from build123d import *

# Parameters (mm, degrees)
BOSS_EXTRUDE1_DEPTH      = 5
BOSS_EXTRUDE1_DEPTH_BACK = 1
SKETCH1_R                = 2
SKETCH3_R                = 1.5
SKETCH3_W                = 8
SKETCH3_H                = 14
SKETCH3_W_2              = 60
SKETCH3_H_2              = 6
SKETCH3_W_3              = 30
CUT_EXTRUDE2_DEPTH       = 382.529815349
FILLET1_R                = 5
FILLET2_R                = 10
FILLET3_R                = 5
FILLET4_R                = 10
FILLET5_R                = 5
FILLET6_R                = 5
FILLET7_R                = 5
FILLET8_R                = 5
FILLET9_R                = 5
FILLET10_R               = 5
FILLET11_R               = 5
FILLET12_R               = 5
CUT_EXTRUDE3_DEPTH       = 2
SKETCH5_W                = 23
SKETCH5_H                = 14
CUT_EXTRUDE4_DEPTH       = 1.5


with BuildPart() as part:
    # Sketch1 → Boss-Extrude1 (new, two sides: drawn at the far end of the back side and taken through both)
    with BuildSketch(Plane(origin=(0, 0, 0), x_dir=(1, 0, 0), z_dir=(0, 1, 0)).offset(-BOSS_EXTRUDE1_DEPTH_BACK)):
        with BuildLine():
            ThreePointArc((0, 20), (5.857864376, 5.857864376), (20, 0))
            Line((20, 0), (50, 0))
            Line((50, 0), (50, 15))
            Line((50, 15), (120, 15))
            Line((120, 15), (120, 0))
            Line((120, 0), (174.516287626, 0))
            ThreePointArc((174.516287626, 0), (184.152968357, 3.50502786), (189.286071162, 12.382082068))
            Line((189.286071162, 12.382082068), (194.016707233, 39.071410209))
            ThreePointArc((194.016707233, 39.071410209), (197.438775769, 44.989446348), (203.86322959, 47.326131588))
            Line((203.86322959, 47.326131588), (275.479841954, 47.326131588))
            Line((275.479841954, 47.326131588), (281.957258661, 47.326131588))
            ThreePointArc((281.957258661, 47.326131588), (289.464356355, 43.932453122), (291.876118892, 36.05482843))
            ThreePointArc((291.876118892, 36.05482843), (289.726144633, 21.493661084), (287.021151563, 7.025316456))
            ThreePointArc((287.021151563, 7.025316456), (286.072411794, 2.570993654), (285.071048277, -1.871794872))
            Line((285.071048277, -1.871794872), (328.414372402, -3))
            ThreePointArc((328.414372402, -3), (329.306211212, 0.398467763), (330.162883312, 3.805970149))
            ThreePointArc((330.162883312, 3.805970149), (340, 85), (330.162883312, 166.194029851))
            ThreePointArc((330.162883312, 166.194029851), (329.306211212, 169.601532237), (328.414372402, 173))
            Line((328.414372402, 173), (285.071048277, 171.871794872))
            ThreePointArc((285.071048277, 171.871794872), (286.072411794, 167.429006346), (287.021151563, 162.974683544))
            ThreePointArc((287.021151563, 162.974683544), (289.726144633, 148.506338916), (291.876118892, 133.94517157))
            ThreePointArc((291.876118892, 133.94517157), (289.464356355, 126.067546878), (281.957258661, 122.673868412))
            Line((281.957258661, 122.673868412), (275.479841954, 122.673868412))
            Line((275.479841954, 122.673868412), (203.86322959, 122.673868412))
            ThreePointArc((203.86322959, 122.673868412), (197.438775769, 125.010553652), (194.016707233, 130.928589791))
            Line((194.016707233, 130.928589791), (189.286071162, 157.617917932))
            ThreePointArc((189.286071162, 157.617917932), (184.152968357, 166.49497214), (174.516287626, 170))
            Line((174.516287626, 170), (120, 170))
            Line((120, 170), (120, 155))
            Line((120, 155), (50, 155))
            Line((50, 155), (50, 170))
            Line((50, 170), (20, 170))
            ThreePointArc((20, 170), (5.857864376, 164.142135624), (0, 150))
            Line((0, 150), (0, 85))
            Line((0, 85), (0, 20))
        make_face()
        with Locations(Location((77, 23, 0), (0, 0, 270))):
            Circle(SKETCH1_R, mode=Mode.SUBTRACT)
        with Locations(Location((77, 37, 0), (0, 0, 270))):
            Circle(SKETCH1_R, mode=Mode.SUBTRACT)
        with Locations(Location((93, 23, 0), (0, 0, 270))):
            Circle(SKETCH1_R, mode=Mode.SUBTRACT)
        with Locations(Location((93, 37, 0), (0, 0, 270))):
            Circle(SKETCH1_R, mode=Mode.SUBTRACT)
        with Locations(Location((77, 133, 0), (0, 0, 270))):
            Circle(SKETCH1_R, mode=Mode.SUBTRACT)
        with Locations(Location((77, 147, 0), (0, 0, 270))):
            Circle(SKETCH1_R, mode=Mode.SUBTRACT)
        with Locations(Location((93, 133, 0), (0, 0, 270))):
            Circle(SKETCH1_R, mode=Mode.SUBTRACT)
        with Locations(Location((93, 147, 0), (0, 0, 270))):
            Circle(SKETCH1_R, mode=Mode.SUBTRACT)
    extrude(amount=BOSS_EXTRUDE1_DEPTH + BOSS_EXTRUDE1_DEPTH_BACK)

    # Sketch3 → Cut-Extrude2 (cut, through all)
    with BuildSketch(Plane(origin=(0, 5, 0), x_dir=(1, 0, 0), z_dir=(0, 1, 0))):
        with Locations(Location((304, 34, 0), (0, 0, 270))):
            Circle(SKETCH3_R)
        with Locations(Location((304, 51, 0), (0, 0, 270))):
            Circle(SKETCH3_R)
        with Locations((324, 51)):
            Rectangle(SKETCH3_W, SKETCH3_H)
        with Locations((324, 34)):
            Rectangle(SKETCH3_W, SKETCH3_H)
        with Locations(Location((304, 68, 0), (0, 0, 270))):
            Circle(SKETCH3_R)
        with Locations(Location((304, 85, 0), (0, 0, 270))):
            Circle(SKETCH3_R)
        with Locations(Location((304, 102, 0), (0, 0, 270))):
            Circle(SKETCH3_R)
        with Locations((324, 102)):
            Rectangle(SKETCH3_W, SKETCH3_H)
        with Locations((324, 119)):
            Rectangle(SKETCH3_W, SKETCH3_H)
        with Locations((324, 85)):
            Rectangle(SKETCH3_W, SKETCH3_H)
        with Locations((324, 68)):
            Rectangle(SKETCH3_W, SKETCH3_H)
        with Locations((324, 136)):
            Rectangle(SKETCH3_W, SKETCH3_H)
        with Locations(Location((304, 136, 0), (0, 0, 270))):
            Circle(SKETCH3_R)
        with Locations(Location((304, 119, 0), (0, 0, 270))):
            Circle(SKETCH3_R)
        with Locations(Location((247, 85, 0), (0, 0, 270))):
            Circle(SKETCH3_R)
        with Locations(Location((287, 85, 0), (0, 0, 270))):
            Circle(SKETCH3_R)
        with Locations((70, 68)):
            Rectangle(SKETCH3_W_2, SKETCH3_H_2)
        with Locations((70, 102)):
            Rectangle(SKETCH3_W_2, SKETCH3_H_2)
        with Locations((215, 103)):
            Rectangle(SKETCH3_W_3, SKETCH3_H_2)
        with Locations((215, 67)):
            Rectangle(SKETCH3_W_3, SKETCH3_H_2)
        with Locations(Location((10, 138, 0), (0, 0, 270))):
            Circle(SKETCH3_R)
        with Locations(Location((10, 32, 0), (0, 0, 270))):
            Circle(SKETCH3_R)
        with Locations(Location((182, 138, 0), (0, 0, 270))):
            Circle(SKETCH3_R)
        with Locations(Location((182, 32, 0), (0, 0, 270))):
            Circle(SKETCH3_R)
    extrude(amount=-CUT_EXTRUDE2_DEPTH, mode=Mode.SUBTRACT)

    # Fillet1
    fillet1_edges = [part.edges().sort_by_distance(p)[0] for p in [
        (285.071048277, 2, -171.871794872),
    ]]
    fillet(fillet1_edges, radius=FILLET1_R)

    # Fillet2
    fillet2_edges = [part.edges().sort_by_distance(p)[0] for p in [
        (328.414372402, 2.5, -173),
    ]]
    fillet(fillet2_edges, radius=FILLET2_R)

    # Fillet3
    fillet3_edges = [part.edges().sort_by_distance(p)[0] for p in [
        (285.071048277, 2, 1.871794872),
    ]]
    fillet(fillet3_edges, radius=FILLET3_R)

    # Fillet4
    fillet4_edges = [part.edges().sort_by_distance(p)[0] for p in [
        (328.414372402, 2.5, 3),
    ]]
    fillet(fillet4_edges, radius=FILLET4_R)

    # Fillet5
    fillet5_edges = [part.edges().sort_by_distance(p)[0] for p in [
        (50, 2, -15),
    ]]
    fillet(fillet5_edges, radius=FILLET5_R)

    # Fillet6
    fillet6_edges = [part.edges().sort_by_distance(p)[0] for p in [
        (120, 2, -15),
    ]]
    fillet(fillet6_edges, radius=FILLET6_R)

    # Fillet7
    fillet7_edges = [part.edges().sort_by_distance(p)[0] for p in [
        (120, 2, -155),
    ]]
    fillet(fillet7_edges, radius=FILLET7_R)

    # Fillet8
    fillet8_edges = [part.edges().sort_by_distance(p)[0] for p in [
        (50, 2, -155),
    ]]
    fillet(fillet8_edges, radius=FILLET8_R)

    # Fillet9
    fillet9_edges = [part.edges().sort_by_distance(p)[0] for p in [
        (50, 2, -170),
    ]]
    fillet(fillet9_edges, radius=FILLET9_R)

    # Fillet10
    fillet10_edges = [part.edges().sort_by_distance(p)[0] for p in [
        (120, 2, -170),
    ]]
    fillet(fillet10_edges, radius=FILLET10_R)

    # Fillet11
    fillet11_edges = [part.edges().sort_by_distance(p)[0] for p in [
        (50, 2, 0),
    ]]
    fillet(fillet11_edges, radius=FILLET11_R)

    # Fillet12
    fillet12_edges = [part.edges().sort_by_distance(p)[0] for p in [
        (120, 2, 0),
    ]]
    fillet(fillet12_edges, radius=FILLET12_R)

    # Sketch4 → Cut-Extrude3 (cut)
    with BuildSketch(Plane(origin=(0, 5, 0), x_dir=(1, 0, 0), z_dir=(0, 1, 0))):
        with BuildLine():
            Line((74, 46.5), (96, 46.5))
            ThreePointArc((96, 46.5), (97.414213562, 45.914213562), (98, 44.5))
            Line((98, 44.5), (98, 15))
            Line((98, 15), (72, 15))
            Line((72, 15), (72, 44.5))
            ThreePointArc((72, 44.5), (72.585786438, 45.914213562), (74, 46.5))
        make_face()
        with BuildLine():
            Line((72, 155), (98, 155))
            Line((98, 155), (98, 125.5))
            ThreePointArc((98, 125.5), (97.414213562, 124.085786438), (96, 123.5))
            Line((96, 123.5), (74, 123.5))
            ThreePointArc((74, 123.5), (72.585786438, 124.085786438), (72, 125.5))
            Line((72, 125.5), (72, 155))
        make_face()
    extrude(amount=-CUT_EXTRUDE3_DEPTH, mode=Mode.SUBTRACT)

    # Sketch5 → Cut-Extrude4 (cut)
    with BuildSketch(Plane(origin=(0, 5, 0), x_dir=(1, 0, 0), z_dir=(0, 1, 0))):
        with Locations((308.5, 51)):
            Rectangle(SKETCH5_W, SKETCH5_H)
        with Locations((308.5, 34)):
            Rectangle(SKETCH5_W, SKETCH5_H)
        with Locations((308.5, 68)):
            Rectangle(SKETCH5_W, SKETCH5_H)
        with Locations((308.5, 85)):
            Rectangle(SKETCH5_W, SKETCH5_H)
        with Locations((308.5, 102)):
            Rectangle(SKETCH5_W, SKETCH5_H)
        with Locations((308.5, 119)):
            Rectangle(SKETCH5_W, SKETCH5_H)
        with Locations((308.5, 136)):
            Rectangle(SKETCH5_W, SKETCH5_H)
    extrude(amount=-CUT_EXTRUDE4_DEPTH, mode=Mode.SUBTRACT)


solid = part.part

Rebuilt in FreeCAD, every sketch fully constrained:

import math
import FreeCAD as App
import Part
import Sketcher
from FreeCAD import Vector


def edges_at(feature, points):
    """Names of the edges that pass closest to the given points."""
    edges = feature.Shape.Edges
    near = lambda p: min(range(len(edges)), key=lambda i: edges[i].distToShape(Part.Vertex(*p))[0])
    return sorted({f"Edge{near(p) + 1}" for p in points})


def add_polygon(sketch, points):
    """Adds a closed chain of lines whose ends are joined by coincident constraints."""
    first, n = sketch.GeometryCount, len(points)
    for a, b in zip(points, points[1:] + points[:1]):
        sketch.addGeometry(Part.LineSegment(App.Vector(*a, 0), App.Vector(*b, 0)), False)
    for i in range(n):
        sketch.addConstraint(Sketcher.Constraint("Coincident", first + i, 2, first + (i + 1) % n, 1))

doc = App.newDocument("Part")
body = doc.addObject("PartDesign::Body", "Body")

# Sketch on XZ plane
sketch1 = body.newObject("Sketcher::SketchObject", "Sketch")
sketch1.AttachmentSupport = (doc.getObject("XZ_Plane"), [""])
sketch1.MapMode = "FlatFace"
sketch1.addGeometry(Part.ArcOfCircle(Part.Circle(Vector(20, -20, 0), Vector(0, 0, 1), 20), math.radians(90), math.radians(180)), False)
sketch1.addGeometry(Part.LineSegment(Vector(20, 0, 0), Vector(50, 0, 0)), False)
sketch1.addGeometry(Part.LineSegment(Vector(50, 0, 0), Vector(50, -15, 0)), False)
sketch1.addGeometry(Part.LineSegment(Vector(50, -15, 0), Vector(120, -15, 0)), False)
sketch1.addGeometry(Part.LineSegment(Vector(120, -15, 0), Vector(120, 0, 0)), False)
sketch1.addGeometry(Part.LineSegment(Vector(120, 0, 0), Vector(174.516288, 0, 0)), False)
sketch1.addGeometry(Part.ArcOfCircle(Part.Circle(Vector(174.516288, -15, 0), Vector(0, 0, 1), 15), math.radians(10.051184), math.radians(90)), False)
sketch1.addGeometry(Part.LineSegment(Vector(189.286071, -12.382082, 0), Vector(194.016707, -39.07141, 0)), False)
sketch1.addGeometry(Part.ArcOfCircle(Part.Circle(Vector(203.86323, -37.326132, 0), Vector(0, 0, 1), 10), math.radians(-169.948816), math.radians(-90)), False)
sketch1.addGeometry(Part.LineSegment(Vector(203.86323, -47.326132, 0), Vector(281.957259, -47.326132, 0)), False)
sketch1.addGeometry(Part.ArcOfCircle(Part.Circle(Vector(281.957259, -37.326132, 0), Vector(0, 0, 1), 10), math.radians(-90), math.radians(7.303796)), False)
sketch1.addGeometry(Part.ArcOfCircle(Part.Circle(Vector(-89.999999, -85, 0), Vector(0, 0, 1), 384.999999), math.radians(7.303796), math.radians(11.685042)), False)
sketch1.addGeometry(Part.ArcOfCircle(Part.Circle(Vector(-90.000001, -85, 0), Vector(0, 0, 1), 385.000001), math.radians(11.685042), math.radians(13.040576)), False)
sketch1.addGeometry(Part.LineSegment(Vector(285.071048, 1.871795, 0), Vector(328.414372, 3, 0)), False)
sketch1.addGeometry(Part.ArcOfCircle(Part.Circle(Vector(-0.000016, -85.000004, 0), Vector(0, 0, 1), 340.000017), math.radians(13.816079), math.radians(15.000266)), False)
sketch1.addGeometry(Part.ArcOfCircle(Part.Circle(Vector(0, -85, 0), Vector(0, 0, 1), 340), math.radians(-13.816078), math.radians(13.816078)), False)
sketch1.addGeometry(Part.ArcOfCircle(Part.Circle(Vector(-0.000016, -84.999996, 0), Vector(0, 0, 1), 340.000017), math.radians(-15.000266), math.radians(-13.816079)), False)
sketch1.addGeometry(Part.LineSegment(Vector(328.414372, -173, 0), Vector(285.071048, -171.871795, 0)), False)
sketch1.addGeometry(Part.ArcOfCircle(Part.Circle(Vector(-90.000001, -85, 0), Vector(0, 0, 1), 385.000001), math.radians(-13.040576), math.radians(-11.685042)), False)
sketch1.addGeometry(Part.ArcOfCircle(Part.Circle(Vector(-89.999999, -85, 0), Vector(0, 0, 1), 384.999999), math.radians(-11.685042), math.radians(-7.303796)), False)
sketch1.addGeometry(Part.ArcOfCircle(Part.Circle(Vector(281.957259, -132.673868, 0), Vector(0, 0, 1), 10), math.radians(-7.303796), math.radians(90)), False)
sketch1.addGeometry(Part.LineSegment(Vector(281.957259, -122.673868, 0), Vector(203.86323, -122.673868, 0)), False)
sketch1.addGeometry(Part.ArcOfCircle(Part.Circle(Vector(203.86323, -132.673868, 0), Vector(0, 0, 1), 10), math.radians(90), math.radians(169.948816)), False)
sketch1.addGeometry(Part.LineSegment(Vector(194.016707, -130.92859, 0), Vector(189.286071, -157.617918, 0)), False)
sketch1.addGeometry(Part.ArcOfCircle(Part.Circle(Vector(174.516288, -155, 0), Vector(0, 0, 1), 15), math.radians(-90), math.radians(-10.051184)), False)
sketch1.addGeometry(Part.LineSegment(Vector(174.516288, -170, 0), Vector(120, -170, 0)), False)
sketch1.addGeometry(Part.LineSegment(Vector(120, -170, 0), Vector(120, -155, 0)), False)
sketch1.addGeometry(Part.LineSegment(Vector(120, -155, 0), Vector(50, -155, 0)), False)
sketch1.addGeometry(Part.LineSegment(Vector(50, -155, 0), Vector(50, -170, 0)), False)
sketch1.addGeometry(Part.LineSegment(Vector(50, -170, 0), Vector(20, -170, 0)), False)
sketch1.addGeometry(Part.ArcOfCircle(Part.Circle(Vector(20, -150, 0), Vector(0, 0, 1), 20), math.radians(180), math.radians(270)), False)
sketch1.addGeometry(Part.LineSegment(Vector(0, -150, 0), Vector(0, -20, 0)), False)
sketch1.addGeometry(Part.Circle(Vector(77, -23, 0), Vector(0, 0, 1), 2), False)
sketch1.addGeometry(Part.Circle(Vector(77, -37, 0), Vector(0, 0, 1), 2), False)
sketch1.addGeometry(Part.Circle(Vector(93, -23, 0), Vector(0, 0, 1), 2), False)
sketch1.addGeometry(Part.Circle(Vector(93, -37, 0), Vector(0, 0, 1), 2), False)
sketch1.addGeometry(Part.Circle(Vector(77, -133, 0), Vector(0, 0, 1), 2), False)
sketch1.addGeometry(Part.Circle(Vector(77, -147, 0), Vector(0, 0, 1), 2), False)
sketch1.addGeometry(Part.Circle(Vector(93, -133, 0), Vector(0, 0, 1), 2), False)
sketch1.addGeometry(Part.Circle(Vector(93, -147, 0), Vector(0, 0, 1), 2), False)
sketch1.addConstraint(Sketcher.Constraint("Tangent", 0, 1, 1, 1))
sketch1.addConstraint(Sketcher.Constraint("Coincident", 1, 2, 2, 1))
sketch1.addConstraint(Sketcher.Constraint("Coincident", 2, 2, 3, 1))
sketch1.addConstraint(Sketcher.Constraint("Coincident", 3, 2, 4, 1))
sketch1.addConstraint(Sketcher.Constraint("Coincident", 4, 2, 5, 1))
sketch1.addConstraint(Sketcher.Constraint("Tangent", 5, 2, 6, 2))
sketch1.addConstraint(Sketcher.Constraint("Tangent", 6, 1, 7, 1))
sketch1.addConstraint(Sketcher.Constraint("Tangent", 7, 2, 8, 1))
sketch1.addConstraint(Sketcher.Constraint("Tangent", 8, 2, 9, 1))
sketch1.addConstraint(Sketcher.Constraint("Tangent", 9, 2, 10, 1))
sketch1.addConstraint(Sketcher.Constraint("Tangent", 10, 2, 11, 1))
sketch1.addConstraint(Sketcher.Constraint("Tangent", 11, 2, 12, 1))
sketch1.addConstraint(Sketcher.Constraint("Coincident", 12, 2, 13, 1))
sketch1.addConstraint(Sketcher.Constraint("Coincident", 13, 2, 14, 2))
sketch1.addConstraint(Sketcher.Constraint("Tangent", 14, 1, 15, 2))
sketch1.addConstraint(Sketcher.Constraint("Tangent", 15, 1, 16, 2))
sketch1.addConstraint(Sketcher.Constraint("Coincident", 16, 1, 17, 1))
sketch1.addConstraint(Sketcher.Constraint("Coincident", 17, 2, 18, 1))
sketch1.addConstraint(Sketcher.Constraint("Tangent", 18, 2, 19, 1))
sketch1.addConstraint(Sketcher.Constraint("Tangent", 19, 2, 20, 1))
sketch1.addConstraint(Sketcher.Constraint("Tangent", 20, 2, 21, 1))
sketch1.addConstraint(Sketcher.Constraint("Tangent", 21, 2, 22, 1))
sketch1.addConstraint(Sketcher.Constraint("Tangent", 22, 2, 23, 1))
sketch1.addConstraint(Sketcher.Constraint("Tangent", 23, 2, 24, 2))
sketch1.addConstraint(Sketcher.Constraint("Tangent", 24, 1, 25, 1))
sketch1.addConstraint(Sketcher.Constraint("Coincident", 25, 2, 26, 1))
sketch1.addConstraint(Sketcher.Constraint("Coincident", 26, 2, 27, 1))
sketch1.addConstraint(Sketcher.Constraint("Coincident", 27, 2, 28, 1))
sketch1.addConstraint(Sketcher.Constraint("Coincident", 28, 2, 29, 1))
sketch1.addConstraint(Sketcher.Constraint("Tangent", 29, 2, 30, 2))
sketch1.addConstraint(Sketcher.Constraint("Tangent", 30, 1, 31, 1))
sketch1.addConstraint(Sketcher.Constraint("Tangent", 31, 2, 0, 2))
sketch1.addConstraint(Sketcher.Constraint("Horizontal", 1))
sketch1.addConstraint(Sketcher.Constraint("Vertical", 2))
sketch1.addConstraint(Sketcher.Constraint("Horizontal", 3))
sketch1.addConstraint(Sketcher.Constraint("Vertical", 4))
sketch1.addConstraint(Sketcher.Constraint("Horizontal", 5))
sketch1.addConstraint(Sketcher.Constraint("Horizontal", 9))
sketch1.addConstraint(Sketcher.Constraint("Horizontal", 21))
sketch1.addConstraint(Sketcher.Constraint("Horizontal", 25))
sketch1.addConstraint(Sketcher.Constraint("Vertical", 26))
sketch1.addConstraint(Sketcher.Constraint("Horizontal", 27))
sketch1.addConstraint(Sketcher.Constraint("Vertical", 28))
sketch1.addConstraint(Sketcher.Constraint("Horizontal", 29))
sketch1.addConstraint(Sketcher.Constraint("Vertical", 31))
sketch1.addConstraint(Sketcher.Constraint("Coincident", 16, 3, 14, 3))
sketch1.addConstraint(Sketcher.Constraint("Coincident", 18, 3, 11, 3))
sketch1.addConstraint(Sketcher.Constraint("Equal", 8, 10))
sketch1.addConstraint(Sketcher.Constraint("Equal", 11, 12))
sketch1.addConstraint(Sketcher.Constraint("Equal", 12, 18))
sketch1.addConstraint(Sketcher.Constraint("Equal", 18, 19))
sketch1.addConstraint(Sketcher.Constraint("Equal", 10, 20))
sketch1.addConstraint(Sketcher.Constraint("Equal", 20, 22))
sketch1.addConstraint(Sketcher.Constraint("Equal", 6, 24))
sketch1.addConstraint(Sketcher.Constraint("Equal", 0, 30))
sketch1.addConstraint(Sketcher.Constraint("Equal", 32, 33))
sketch1.addConstraint(Sketcher.Constraint("Equal", 33, 34))
sketch1.addConstraint(Sketcher.Constraint("Equal", 34, 35))
sketch1.addConstraint(Sketcher.Constraint("Equal", 35, 36))
sketch1.addConstraint(Sketcher.Constraint("Equal", 36, 37))
sketch1.addConstraint(Sketcher.Constraint("Equal", 37, 38))
sketch1.addConstraint(Sketcher.Constraint("Equal", 38, 39))
sketch1.addConstraint(Sketcher.Constraint("PointOnObject", 15, 3, -2))
sketch1.addConstraint(Sketcher.Constraint("PointOnObject", 0, 1, -1))
sketch1.addConstraint(Sketcher.Constraint("PointOnObject", 4, 2, -1))
sketch1.addConstraint(Sketcher.Constraint("PointOnObject", 30, 1, -2))
sketch1.addConstraint(Sketcher.Constraint("Horizontal", 12, 3, 15, 3))
sketch1.addConstraint(Sketcher.Constraint("Horizontal", 32, 3, 34, 3))
sketch1.addConstraint(Sketcher.Constraint("Horizontal", 33, 3, 35, 3))
sketch1.addConstraint(Sketcher.Constraint("Horizontal", 36, 3, 38, 3))
sketch1.addConstraint(Sketcher.Constraint("Horizontal", 37, 3, 39, 3))
sketch1.addConstraint(Sketcher.Constraint("Horizontal", 6, 3, 2, 2))
sketch1.addConstraint(Sketcher.Constraint("Horizontal", 24, 3, 26, 2))
sketch1.addConstraint(Sketcher.Constraint("Horizontal", 25, 2, 28, 2))
sketch1.addConstraint(Sketcher.Constraint("Vertical", 10, 3, 20, 3))
sketch1.addConstraint(Sketcher.Constraint("Vertical", 8, 3, 22, 3))
sketch1.addConstraint(Sketcher.Constraint("Vertical", 6, 3, 24, 3))
sketch1.addConstraint(Sketcher.Constraint("Vertical", 32, 3, 33, 3))
sketch1.addConstraint(Sketcher.Constraint("Vertical", 34, 3, 35, 3))
sketch1.addConstraint(Sketcher.Constraint("Vertical", 33, 3, 36, 3))
sketch1.addConstraint(Sketcher.Constraint("Vertical", 36, 3, 37, 3))
sketch1.addConstraint(Sketcher.Constraint("Vertical", 35, 3, 38, 3))
sketch1.addConstraint(Sketcher.Constraint("Vertical", 38, 3, 39, 3))
sketch1.addConstraint(Sketcher.Constraint("Vertical", 14, 1, 15, 1))
sketch1.addConstraint(Sketcher.Constraint("Vertical", 13, 2, 16, 1))
sketch1.addConstraint(Sketcher.Constraint("Vertical", 12, 2, 17, 2))
sketch1.addConstraint(Sketcher.Constraint("Vertical", 11, 2, 18, 2))
sketch1.addConstraint(Sketcher.Constraint("Vertical", 7, 2, 22, 2))
sketch1.addConstraint(Sketcher.Constraint("Vertical", 4, 2, 25, 2))
sketch1.addConstraint(Sketcher.Constraint("Vertical", 2, 2, 27, 2))
sketch1.addConstraint(Sketcher.Constraint("Diameter", 32, 4.0))
sketch1.addConstraint(Sketcher.Constraint("Radius", 0, 20.0))
sketch1.addConstraint(Sketcher.Constraint("Radius", 6, 15.0))
sketch1.addConstraint(Sketcher.Constraint("Radius", 8, 10.0))
sketch1.addConstraint(Sketcher.Constraint("Radius", 11, 384.999999))
sketch1.addConstraint(Sketcher.Constraint("Radius", 15, 340.0))
sketch1.addConstraint(Sketcher.Constraint("DistanceX", 1, 1, 1, 2, 30.0))
sketch1.addConstraint(Sketcher.Constraint("DistanceX", 3, 1, 3, 2, 70.0))
sketch1.addConstraint(Sketcher.Constraint("DistanceY", 31, 1, 31, 2, 130.0))
sketch1.addConstraint(Sketcher.Constraint("DistanceX", 11, 3, -1, 1, 89.999999))
sketch1.addConstraint(Sketcher.Constraint("DistanceX", -1, 1, 32, 3, 77.0))
sketch1.addConstraint(Sketcher.Constraint("DistanceY", 32, 3, -1, 1, 23.0))
sketch1.addConstraint(Sketcher.Constraint("DistanceY", 33, 3, -1, 1, 37.0))
sketch1.addConstraint(Sketcher.Constraint("DistanceX", -1, 1, 34, 3, 93.0))
sketch1.addConstraint(Sketcher.Constraint("DistanceY", 36, 3, -1, 1, 133.0))
sketch1.addConstraint(Sketcher.Constraint("DistanceY", 37, 3, -1, 1, 147.0))
sketch1.addConstraint(Sketcher.Constraint("DistanceY", -1, 1, 13, 2, 3.0))
sketch1.addConstraint(Sketcher.Constraint("DistanceX", 9, 1, 9, 2, 78.094029))
sketch1.addConstraint(Sketcher.Constraint("DistanceY", 15, 1, 9, 2, 118.867898))
sketch1.addConstraint(Sketcher.Constraint("DistanceX", 5, 1, 5, 2, 54.516288))
sketch1.addConstraint(Sketcher.Constraint("DistanceX", -1, 1, 8, 3, 203.86323))
sketch1.addConstraint(Sketcher.Constraint("DistanceX", -1, 1, 11, 2, 287.021152))
sketch1.addConstraint(Sketcher.Constraint("DistanceX", -1, 1, 17, 2, 285.071048))
pad1 = body.newObject("PartDesign::Pad", "Pad")
pad1.Profile = sketch1
pad1.Type = "TwoLengths"
pad1.Length = 5
pad1.Length2 = 1
pad1.Reversed = True

# Sketch on XZ plane
sketch2 = body.newObject("Sketcher::SketchObject", "Sketch001")
sketch2.AttachmentSupport = (doc.getObject("XZ_Plane"), [""])
sketch2.MapMode = "FlatFace"
sketch2.AttachmentOffset = App.Placement(Vector(0, 0, -5), App.Rotation())
sketch2.addGeometry(Part.Circle(Vector(304, -34, 0), Vector(0, 0, 1), 1.5), False)  # 0
sketch2.addGeometry(Part.Circle(Vector(304, -51, 0), Vector(0, 0, 1), 1.5), False)  # 1
add_polygon(sketch2, [(320, -58), (320, -44), (328, -44), (328, -58)])  # lines 2-5
add_polygon(sketch2, [(320, -41), (320, -27), (328, -27), (328, -41)])  # lines 6-9
sketch2.addGeometry(Part.Circle(Vector(304, -68, 0), Vector(0, 0, 1), 1.5), False)  # 10
sketch2.addGeometry(Part.Circle(Vector(304, -85, 0), Vector(0, 0, 1), 1.5), False)  # 11
sketch2.addGeometry(Part.Circle(Vector(304, -102, 0), Vector(0, 0, 1), 1.5), False)  # 12
add_polygon(sketch2, [(320, -109), (320, -95), (328, -95), (328, -109)])  # lines 13-16
add_polygon(sketch2, [(320, -126), (320, -112), (328, -112), (328, -126)])  # lines 17-20
add_polygon(sketch2, [(320, -92), (320, -78), (328, -78), (328, -92)])  # lines 21-24
add_polygon(sketch2, [(320, -75), (320, -61), (328, -61), (328, -75)])  # lines 25-28
add_polygon(sketch2, [(320, -143), (320, -129), (328, -129), (328, -143)])  # lines 29-32
sketch2.addGeometry(Part.Circle(Vector(304, -136, 0), Vector(0, 0, 1), 1.5), False)  # 33
sketch2.addGeometry(Part.Circle(Vector(304, -119, 0), Vector(0, 0, 1), 1.5), False)  # 34
sketch2.addGeometry(Part.Circle(Vector(247, -85, 0), Vector(0, 0, 1), 1.5), False)  # 35
sketch2.addGeometry(Part.Circle(Vector(287, -85, 0), Vector(0, 0, 1), 1.5), False)  # 36
add_polygon(sketch2, [(40, -71), (40, -65), (100, -65), (100, -71)])  # lines 37-40
add_polygon(sketch2, [(40, -105), (40, -99), (100, -99), (100, -105)])  # lines 41-44
add_polygon(sketch2, [(200, -106), (200, -100), (230, -100), (230, -106)])  # lines 45-48
add_polygon(sketch2, [(200, -70), (200, -64), (230, -64), (230, -70)])  # lines 49-52
sketch2.addGeometry(Part.Circle(Vector(10, -138, 0), Vector(0, 0, 1), 1.5), False)  # 53
sketch2.addGeometry(Part.Circle(Vector(10, -32, 0), Vector(0, 0, 1), 1.5), False)  # 54
sketch2.addGeometry(Part.Circle(Vector(182, -138, 0), Vector(0, 0, 1), 1.5), False)  # 55
sketch2.addGeometry(Part.Circle(Vector(182, -32, 0), Vector(0, 0, 1), 1.5), False)  # 56
sketch2.addConstraint(Sketcher.Constraint("Vertical", 2))
sketch2.addConstraint(Sketcher.Constraint("Horizontal", 3))
sketch2.addConstraint(Sketcher.Constraint("Vertical", 4))
sketch2.addConstraint(Sketcher.Constraint("Horizontal", 5))
sketch2.addConstraint(Sketcher.Constraint("Vertical", 6))
sketch2.addConstraint(Sketcher.Constraint("Horizontal", 7))
sketch2.addConstraint(Sketcher.Constraint("Vertical", 8))
sketch2.addConstraint(Sketcher.Constraint("Horizontal", 9))
sketch2.addConstraint(Sketcher.Constraint("Vertical", 13))
sketch2.addConstraint(Sketcher.Constraint("Horizontal", 14))
sketch2.addConstraint(Sketcher.Constraint("Vertical", 15))
sketch2.addConstraint(Sketcher.Constraint("Horizontal", 16))
sketch2.addConstraint(Sketcher.Constraint("Vertical", 17))
sketch2.addConstraint(Sketcher.Constraint("Horizontal", 18))
sketch2.addConstraint(Sketcher.Constraint("Vertical", 19))
sketch2.addConstraint(Sketcher.Constraint("Horizontal", 20))
sketch2.addConstraint(Sketcher.Constraint("Vertical", 21))
sketch2.addConstraint(Sketcher.Constraint("Horizontal", 22))
sketch2.addConstraint(Sketcher.Constraint("Vertical", 23))
sketch2.addConstraint(Sketcher.Constraint("Horizontal", 24))
sketch2.addConstraint(Sketcher.Constraint("Vertical", 25))
sketch2.addConstraint(Sketcher.Constraint("Horizontal", 26))
sketch2.addConstraint(Sketcher.Constraint("Vertical", 27))
sketch2.addConstraint(Sketcher.Constraint("Horizontal", 28))
sketch2.addConstraint(Sketcher.Constraint("Vertical", 29))
sketch2.addConstraint(Sketcher.Constraint("Horizontal", 30))
sketch2.addConstraint(Sketcher.Constraint("Vertical", 31))
sketch2.addConstraint(Sketcher.Constraint("Horizontal", 32))
sketch2.addConstraint(Sketcher.Constraint("Vertical", 37))
sketch2.addConstraint(Sketcher.Constraint("Horizontal", 38))
sketch2.addConstraint(Sketcher.Constraint("Vertical", 39))
sketch2.addConstraint(Sketcher.Constraint("Horizontal", 40))
sketch2.addConstraint(Sketcher.Constraint("Vertical", 41))
sketch2.addConstraint(Sketcher.Constraint("Horizontal", 42))
sketch2.addConstraint(Sketcher.Constraint("Vertical", 43))
sketch2.addConstraint(Sketcher.Constraint("Horizontal", 44))
sketch2.addConstraint(Sketcher.Constraint("Vertical", 45))
sketch2.addConstraint(Sketcher.Constraint("Horizontal", 46))
sketch2.addConstraint(Sketcher.Constraint("Vertical", 47))
sketch2.addConstraint(Sketcher.Constraint("Horizontal", 48))
sketch2.addConstraint(Sketcher.Constraint("Vertical", 49))
sketch2.addConstraint(Sketcher.Constraint("Horizontal", 50))
sketch2.addConstraint(Sketcher.Constraint("Vertical", 51))
sketch2.addConstraint(Sketcher.Constraint("Horizontal", 52))
sketch2.addConstraint(Sketcher.Constraint("Equal", 0, 1))
sketch2.addConstraint(Sketcher.Constraint("Equal", 1, 10))
sketch2.addConstraint(Sketcher.Constraint("Equal", 10, 11))
sketch2.addConstraint(Sketcher.Constraint("Equal", 11, 12))
sketch2.addConstraint(Sketcher.Constraint("Equal", 12, 33))
sketch2.addConstraint(Sketcher.Constraint("Equal", 33, 34))
sketch2.addConstraint(Sketcher.Constraint("Equal", 34, 35))
sketch2.addConstraint(Sketcher.Constraint("Equal", 35, 36))
sketch2.addConstraint(Sketcher.Constraint("Equal", 36, 53))
sketch2.addConstraint(Sketcher.Constraint("Equal", 53, 54))
sketch2.addConstraint(Sketcher.Constraint("Equal", 54, 55))
sketch2.addConstraint(Sketcher.Constraint("Equal", 55, 56))
sketch2.addConstraint(Sketcher.Constraint("Horizontal", 11, 3, 35, 3))
sketch2.addConstraint(Sketcher.Constraint("Horizontal", 35, 3, 36, 3))
sketch2.addConstraint(Sketcher.Constraint("Horizontal", 53, 3, 55, 3))
sketch2.addConstraint(Sketcher.Constraint("Horizontal", 54, 3, 56, 3))
sketch2.addConstraint(Sketcher.Constraint("Vertical", 0, 3, 1, 3))
sketch2.addConstraint(Sketcher.Constraint("Vertical", 1, 3, 10, 3))
sketch2.addConstraint(Sketcher.Constraint("Vertical", 10, 3, 11, 3))
sketch2.addConstraint(Sketcher.Constraint("Vertical", 11, 3, 12, 3))
sketch2.addConstraint(Sketcher.Constraint("Vertical", 12, 3, 33, 3))
sketch2.addConstraint(Sketcher.Constraint("Vertical", 33, 3, 34, 3))
sketch2.addConstraint(Sketcher.Constraint("Vertical", 53, 3, 54, 3))
sketch2.addConstraint(Sketcher.Constraint("Vertical", 55, 3, 56, 3))
sketch2.addConstraint(Sketcher.Constraint("Vertical", 5, 2, 6, 2))
sketch2.addConstraint(Sketcher.Constraint("Vertical", 4, 2, 7, 2))
sketch2.addConstraint(Sketcher.Constraint("Vertical", 9, 2, 13, 2))
sketch2.addConstraint(Sketcher.Constraint("Vertical", 8, 2, 14, 2))
sketch2.addConstraint(Sketcher.Constraint("Vertical", 16, 2, 17, 2))
sketch2.addConstraint(Sketcher.Constraint("Vertical", 15, 2, 18, 2))
sketch2.addConstraint(Sketcher.Constraint("Vertical", 20, 2, 21, 2))
sketch2.addConstraint(Sketcher.Constraint("Vertical", 19, 2, 22, 2))
sketch2.addConstraint(Sketcher.Constraint("Vertical", 24, 2, 25, 2))
sketch2.addConstraint(Sketcher.Constraint("Vertical", 23, 2, 26, 2))
sketch2.addConstraint(Sketcher.Constraint("Vertical", 28, 2, 29, 2))
sketch2.addConstraint(Sketcher.Constraint("Vertical", 27, 2, 30, 2))
sketch2.addConstraint(Sketcher.Constraint("Vertical", 40, 2, 41, 2))
sketch2.addConstraint(Sketcher.Constraint("Vertical", 39, 2, 42, 2))
sketch2.addConstraint(Sketcher.Constraint("Vertical", 48, 2, 49, 2))
sketch2.addConstraint(Sketcher.Constraint("Vertical", 47, 2, 50, 2))
sketch2.addConstraint(Sketcher.Constraint("Equal", 4, 6))
sketch2.addConstraint(Sketcher.Constraint("Equal", 8, 13))
sketch2.addConstraint(Sketcher.Constraint("Equal", 15, 17))
sketch2.addConstraint(Sketcher.Constraint("Equal", 19, 21))
sketch2.addConstraint(Sketcher.Constraint("Equal", 23, 25))
sketch2.addConstraint(Sketcher.Constraint("Equal", 27, 29))
sketch2.addConstraint(Sketcher.Constraint("Equal", 39, 41))
sketch2.addConstraint(Sketcher.Constraint("Equal", 43, 45))
sketch2.addConstraint(Sketcher.Constraint("Equal", 47, 49))
sketch2.addConstraint(Sketcher.Constraint("Diameter", 0, 3.0))
sketch2.addConstraint(Sketcher.Constraint("DistanceX", 3, 1, 3, 2, 8.0))
sketch2.addConstraint(Sketcher.Constraint("DistanceX", 38, 1, 38, 2, 60.0))
sketch2.addConstraint(Sketcher.Constraint("DistanceX", 46, 1, 46, 2, 30.0))
sketch2.addConstraint(Sketcher.Constraint("DistanceY", 2, 1, 2, 2, 14.0))
sketch2.addConstraint(Sketcher.Constraint("DistanceY", 37, 1, 37, 2, 6.0))
sketch2.addConstraint(Sketcher.Constraint("DistanceX", -1, 1, 0, 3, 304.0))
sketch2.addConstraint(Sketcher.Constraint("DistanceY", 0, 3, -1, 1, 34.0))
sketch2.addConstraint(Sketcher.Constraint("DistanceY", 1, 3, -1, 1, 51.0))
sketch2.addConstraint(Sketcher.Constraint("DistanceY", 10, 3, -1, 1, 68.0))
sketch2.addConstraint(Sketcher.Constraint("DistanceY", 11, 3, -1, 1, 85.0))
sketch2.addConstraint(Sketcher.Constraint("DistanceY", 12, 3, -1, 1, 102.0))
sketch2.addConstraint(Sketcher.Constraint("DistanceY", 33, 3, -1, 1, 136.0))
sketch2.addConstraint(Sketcher.Constraint("DistanceY", 34, 3, -1, 1, 119.0))
sketch2.addConstraint(Sketcher.Constraint("DistanceX", -1, 1, 35, 3, 247.0))
sketch2.addConstraint(Sketcher.Constraint("DistanceX", -1, 1, 36, 3, 287.0))
sketch2.addConstraint(Sketcher.Constraint("DistanceX", -1, 1, 53, 3, 10.0))
sketch2.addConstraint(Sketcher.Constraint("DistanceY", 53, 3, -1, 1, 138.0))
sketch2.addConstraint(Sketcher.Constraint("DistanceY", 54, 3, -1, 1, 32.0))
sketch2.addConstraint(Sketcher.Constraint("DistanceX", -1, 1, 55, 3, 182.0))
sketch2.addConstraint(Sketcher.Constraint("DistanceX", -1, 1, 2, 2, 320.0))
sketch2.addConstraint(Sketcher.Constraint("DistanceY", 2, 2, -1, 1, 44.0))
sketch2.addConstraint(Sketcher.Constraint("DistanceY", 6, 2, -1, 1, 27.0))
sketch2.addConstraint(Sketcher.Constraint("DistanceY", 13, 2, -1, 1, 95.0))
sketch2.addConstraint(Sketcher.Constraint("DistanceY", 17, 2, -1, 1, 112.0))
sketch2.addConstraint(Sketcher.Constraint("DistanceY", 21, 2, -1, 1, 78.0))
sketch2.addConstraint(Sketcher.Constraint("DistanceY", 25, 2, -1, 1, 61.0))
sketch2.addConstraint(Sketcher.Constraint("DistanceY", 29, 2, -1, 1, 129.0))
sketch2.addConstraint(Sketcher.Constraint("DistanceX", -1, 1, 37, 2, 40.0))
sketch2.addConstraint(Sketcher.Constraint("DistanceY", 37, 2, -1, 1, 65.0))
sketch2.addConstraint(Sketcher.Constraint("DistanceY", 41, 2, -1, 1, 99.0))
sketch2.addConstraint(Sketcher.Constraint("DistanceX", -1, 1, 45, 2, 200.0))
sketch2.addConstraint(Sketcher.Constraint("DistanceY", 45, 2, -1, 1, 100.0))
sketch2.addConstraint(Sketcher.Constraint("DistanceY", 49, 2, -1, 1, 64.0))
pocket1 = body.newObject("PartDesign::Pocket", "Pocket")
pocket1.Profile = sketch2
pocket1.Type = "ThroughAll"
pocket1.Reversed = True
doc.recompute()

fillet = body.newObject("PartDesign::Fillet", "Fillet")
fillet.Base = (pocket1, edges_at(pocket1, [(285.071, 2, -171.872)]))
fillet.Radius = 5
doc.recompute()

fillet2 = body.newObject("PartDesign::Fillet", "Fillet001")
fillet2.Base = (fillet, edges_at(fillet, [(328.414, 2, -173)]))
fillet2.Radius = 10
doc.recompute()

fillet3 = body.newObject("PartDesign::Fillet", "Fillet002")
fillet3.Base = (fillet2, edges_at(fillet2, [(285.071, 2, 1.872)]))
fillet3.Radius = 5
doc.recompute()

fillet4 = body.newObject("PartDesign::Fillet", "Fillet003")
fillet4.Base = (fillet3, edges_at(fillet3, [(328.414, 2, 3)]))
fillet4.Radius = 10
doc.recompute()

fillet5 = body.newObject("PartDesign::Fillet", "Fillet004")
fillet5.Base = (fillet4, edges_at(fillet4, [(50, 2, -15)]))
fillet5.Radius = 5
doc.recompute()

fillet6 = body.newObject("PartDesign::Fillet", "Fillet005")
fillet6.Base = (fillet5, edges_at(fillet5, [(120, 2, -15)]))
fillet6.Radius = 5
doc.recompute()

fillet7 = body.newObject("PartDesign::Fillet", "Fillet006")
fillet7.Base = (fillet6, edges_at(fillet6, [(120, 2, -155)]))
fillet7.Radius = 5
doc.recompute()

fillet8 = body.newObject("PartDesign::Fillet", "Fillet007")
fillet8.Base = (fillet7, edges_at(fillet7, [(50, 2, -155)]))
fillet8.Radius = 5
doc.recompute()

fillet9 = body.newObject("PartDesign::Fillet", "Fillet008")
fillet9.Base = (fillet8, edges_at(fillet8, [(50, 2, -170)]))
fillet9.Radius = 5
doc.recompute()

fillet10 = body.newObject("PartDesign::Fillet", "Fillet009")
fillet10.Base = (fillet9, edges_at(fillet9, [(120, 2, -170)]))
fillet10.Radius = 5
doc.recompute()

fillet11 = body.newObject("PartDesign::Fillet", "Fillet010")
fillet11.Base = (fillet10, edges_at(fillet10, [(50, 2, 0)]))
fillet11.Radius = 5
doc.recompute()

fillet12 = body.newObject("PartDesign::Fillet", "Fillet011")
fillet12.Base = (fillet11, edges_at(fillet11, [(120, 2, 0)]))
fillet12.Radius = 5

# Sketch on XZ plane
sketch3 = body.newObject("Sketcher::SketchObject", "Sketch002")
sketch3.AttachmentSupport = (doc.getObject("XZ_Plane"), [""])
sketch3.MapMode = "FlatFace"
sketch3.AttachmentOffset = App.Placement(Vector(0, 0, -5), App.Rotation())
sketch3.addGeometry(Part.LineSegment(Vector(96, -46.5, 0), Vector(74, -46.5, 0)), False)
sketch3.addGeometry(Part.ArcOfCircle(Part.Circle(Vector(74, -44.5, 0), Vector(0, 0, 1), 2), math.radians(-180), math.radians(-90)), False)
sketch3.addGeometry(Part.LineSegment(Vector(72, -44.5, 0), Vector(72, -15, 0)), False)
sketch3.addGeometry(Part.LineSegment(Vector(72, -15, 0), Vector(98, -15, 0)), False)
sketch3.addGeometry(Part.LineSegment(Vector(98, -15, 0), Vector(98, -44.5, 0)), False)
sketch3.addGeometry(Part.ArcOfCircle(Part.Circle(Vector(96, -44.5, 0), Vector(0, 0, 1), 2), math.radians(-90), math.radians(0)), False)
sketch3.addGeometry(Part.LineSegment(Vector(98, -155, 0), Vector(72, -155, 0)), False)
sketch3.addGeometry(Part.LineSegment(Vector(72, -155, 0), Vector(72, -125.5, 0)), False)
sketch3.addGeometry(Part.ArcOfCircle(Part.Circle(Vector(74, -125.5, 0), Vector(0, 0, 1), 2), math.radians(90), math.radians(180)), False)
sketch3.addGeometry(Part.LineSegment(Vector(74, -123.5, 0), Vector(96, -123.5, 0)), False)
sketch3.addGeometry(Part.ArcOfCircle(Part.Circle(Vector(96, -125.5, 0), Vector(0, 0, 1), 2), math.radians(0), math.radians(90)), False)
sketch3.addGeometry(Part.LineSegment(Vector(98, -125.5, 0), Vector(98, -155, 0)), False)
sketch3.addConstraint(Sketcher.Constraint("Tangent", 0, 2, 1, 2))
sketch3.addConstraint(Sketcher.Constraint("Tangent", 1, 1, 2, 1))
sketch3.addConstraint(Sketcher.Constraint("Coincident", 2, 2, 3, 1))
sketch3.addConstraint(Sketcher.Constraint("Coincident", 3, 2, 4, 1))
sketch3.addConstraint(Sketcher.Constraint("Tangent", 4, 2, 5, 2))
sketch3.addConstraint(Sketcher.Constraint("Tangent", 5, 1, 0, 1))
sketch3.addConstraint(Sketcher.Constraint("Coincident", 6, 2, 7, 1))
sketch3.addConstraint(Sketcher.Constraint("Tangent", 7, 2, 8, 2))
sketch3.addConstraint(Sketcher.Constraint("Tangent", 8, 1, 9, 1))
sketch3.addConstraint(Sketcher.Constraint("Tangent", 9, 2, 10, 2))
sketch3.addConstraint(Sketcher.Constraint("Tangent", 10, 1, 11, 1))
sketch3.addConstraint(Sketcher.Constraint("Coincident", 11, 2, 6, 1))
sketch3.addConstraint(Sketcher.Constraint("Horizontal", 0))
sketch3.addConstraint(Sketcher.Constraint("Vertical", 2))
sketch3.addConstraint(Sketcher.Constraint("Horizontal", 3))
sketch3.addConstraint(Sketcher.Constraint("Vertical", 4))
sketch3.addConstraint(Sketcher.Constraint("Horizontal", 6))
sketch3.addConstraint(Sketcher.Constraint("Vertical", 7))
sketch3.addConstraint(Sketcher.Constraint("Horizontal", 9))
sketch3.addConstraint(Sketcher.Constraint("Vertical", 11))
sketch3.addConstraint(Sketcher.Constraint("Equal", 1, 5))
sketch3.addConstraint(Sketcher.Constraint("Equal", 5, 8))
sketch3.addConstraint(Sketcher.Constraint("Equal", 8, 10))
sketch3.addConstraint(Sketcher.Constraint("Vertical", 1, 3, 8, 3))
sketch3.addConstraint(Sketcher.Constraint("Vertical", 5, 3, 10, 3))
sketch3.addConstraint(Sketcher.Constraint("Equal", 4, 7))
sketch3.addConstraint(Sketcher.Constraint("Radius", 1, 2.0))
sketch3.addConstraint(Sketcher.Constraint("DistanceX", 0, 2, 0, 1, 22.0))
sketch3.addConstraint(Sketcher.Constraint("DistanceY", 2, 1, 2, 2, 29.5))
sketch3.addConstraint(Sketcher.Constraint("DistanceX", -1, 1, 1, 3, 74.0))
sketch3.addConstraint(Sketcher.Constraint("DistanceY", 2, 2, -1, 1, 15.0))
sketch3.addConstraint(Sketcher.Constraint("DistanceY", 6, 2, -1, 1, 155.0))
pocket2 = body.newObject("PartDesign::Pocket", "Pocket001")
pocket2.Profile = sketch3
pocket2.Length = 2
pocket2.Reversed = True

# Sketch on XZ plane
sketch4 = body.newObject("Sketcher::SketchObject", "Sketch003")
sketch4.AttachmentSupport = (doc.getObject("XZ_Plane"), [""])
sketch4.MapMode = "FlatFace"
sketch4.AttachmentOffset = App.Placement(Vector(0, 0, -5), App.Rotation())
add_polygon(sketch4, [(297, -58), (297, -44), (320, -44), (320, -58)])  # lines 0-3
add_polygon(sketch4, [(297, -41), (297, -27), (320, -27), (320, -41)])  # lines 4-7
add_polygon(sketch4, [(297, -75), (297, -61), (320, -61), (320, -75)])  # lines 8-11
add_polygon(sketch4, [(297, -92), (297, -78), (320, -78), (320, -92)])  # lines 12-15
add_polygon(sketch4, [(297, -109), (297, -95), (320, -95), (320, -109)])  # lines 16-19
add_polygon(sketch4, [(297, -126), (297, -112), (320, -112), (320, -126)])  # lines 20-23
add_polygon(sketch4, [(297, -143), (297, -129), (320, -129), (320, -143)])  # lines 24-27
sketch4.addConstraint(Sketcher.Constraint("Vertical", 0))
sketch4.addConstraint(Sketcher.Constraint("Horizontal", 1))
sketch4.addConstraint(Sketcher.Constraint("Vertical", 2))
sketch4.addConstraint(Sketcher.Constraint("Horizontal", 3))
sketch4.addConstraint(Sketcher.Constraint("Vertical", 4))
sketch4.addConstraint(Sketcher.Constraint("Horizontal", 5))
sketch4.addConstraint(Sketcher.Constraint("Vertical", 6))
sketch4.addConstraint(Sketcher.Constraint("Horizontal", 7))
sketch4.addConstraint(Sketcher.Constraint("Vertical", 8))
sketch4.addConstraint(Sketcher.Constraint("Horizontal", 9))
sketch4.addConstraint(Sketcher.Constraint("Vertical", 10))
sketch4.addConstraint(Sketcher.Constraint("Horizontal", 11))
sketch4.addConstraint(Sketcher.Constraint("Vertical", 12))
sketch4.addConstraint(Sketcher.Constraint("Horizontal", 13))
sketch4.addConstraint(Sketcher.Constraint("Vertical", 14))
sketch4.addConstraint(Sketcher.Constraint("Horizontal", 15))
sketch4.addConstraint(Sketcher.Constraint("Vertical", 16))
sketch4.addConstraint(Sketcher.Constraint("Horizontal", 17))
sketch4.addConstraint(Sketcher.Constraint("Vertical", 18))
sketch4.addConstraint(Sketcher.Constraint("Horizontal", 19))
sketch4.addConstraint(Sketcher.Constraint("Vertical", 20))
sketch4.addConstraint(Sketcher.Constraint("Horizontal", 21))
sketch4.addConstraint(Sketcher.Constraint("Vertical", 22))
sketch4.addConstraint(Sketcher.Constraint("Horizontal", 23))
sketch4.addConstraint(Sketcher.Constraint("Vertical", 24))
sketch4.addConstraint(Sketcher.Constraint("Horizontal", 25))
sketch4.addConstraint(Sketcher.Constraint("Vertical", 26))
sketch4.addConstraint(Sketcher.Constraint("Horizontal", 27))
sketch4.addConstraint(Sketcher.Constraint("Vertical", 3, 2, 4, 2))
sketch4.addConstraint(Sketcher.Constraint("Vertical", 2, 2, 5, 2))
sketch4.addConstraint(Sketcher.Constraint("Vertical", 7, 2, 8, 2))
sketch4.addConstraint(Sketcher.Constraint("Vertical", 6, 2, 9, 2))
sketch4.addConstraint(Sketcher.Constraint("Vertical", 11, 2, 12, 2))
sketch4.addConstraint(Sketcher.Constraint("Vertical", 10, 2, 13, 2))
sketch4.addConstraint(Sketcher.Constraint("Vertical", 15, 2, 16, 2))
sketch4.addConstraint(Sketcher.Constraint("Vertical", 14, 2, 17, 2))
sketch4.addConstraint(Sketcher.Constraint("Vertical", 19, 2, 20, 2))
sketch4.addConstraint(Sketcher.Constraint("Vertical", 18, 2, 21, 2))
sketch4.addConstraint(Sketcher.Constraint("Vertical", 23, 2, 24, 2))
sketch4.addConstraint(Sketcher.Constraint("Vertical", 22, 2, 25, 2))
sketch4.addConstraint(Sketcher.Constraint("Equal", 2, 4))
sketch4.addConstraint(Sketcher.Constraint("Equal", 6, 8))
sketch4.addConstraint(Sketcher.Constraint("Equal", 10, 12))
sketch4.addConstraint(Sketcher.Constraint("Equal", 14, 16))
sketch4.addConstraint(Sketcher.Constraint("Equal", 18, 20))
sketch4.addConstraint(Sketcher.Constraint("Equal", 22, 24))
sketch4.addConstraint(Sketcher.Constraint("DistanceX", 1, 1, 1, 2, 23.0))
sketch4.addConstraint(Sketcher.Constraint("DistanceY", 0, 1, 0, 2, 14.0))
sketch4.addConstraint(Sketcher.Constraint("DistanceX", -1, 1, 0, 2, 297.0))
sketch4.addConstraint(Sketcher.Constraint("DistanceY", 0, 2, -1, 1, 44.0))
sketch4.addConstraint(Sketcher.Constraint("DistanceY", 4, 2, -1, 1, 27.0))
sketch4.addConstraint(Sketcher.Constraint("DistanceY", 8, 2, -1, 1, 61.0))
sketch4.addConstraint(Sketcher.Constraint("DistanceY", 12, 2, -1, 1, 78.0))
sketch4.addConstraint(Sketcher.Constraint("DistanceY", 16, 2, -1, 1, 95.0))
sketch4.addConstraint(Sketcher.Constraint("DistanceY", 20, 2, -1, 1, 112.0))
sketch4.addConstraint(Sketcher.Constraint("DistanceY", 24, 2, -1, 1, 129.0))
pocket3 = body.newObject("PartDesign::Pocket", "Pocket002")
pocket3.Profile = sketch4
pocket3.Length = 1.5
pocket3.Reversed = True

doc.recompute()
